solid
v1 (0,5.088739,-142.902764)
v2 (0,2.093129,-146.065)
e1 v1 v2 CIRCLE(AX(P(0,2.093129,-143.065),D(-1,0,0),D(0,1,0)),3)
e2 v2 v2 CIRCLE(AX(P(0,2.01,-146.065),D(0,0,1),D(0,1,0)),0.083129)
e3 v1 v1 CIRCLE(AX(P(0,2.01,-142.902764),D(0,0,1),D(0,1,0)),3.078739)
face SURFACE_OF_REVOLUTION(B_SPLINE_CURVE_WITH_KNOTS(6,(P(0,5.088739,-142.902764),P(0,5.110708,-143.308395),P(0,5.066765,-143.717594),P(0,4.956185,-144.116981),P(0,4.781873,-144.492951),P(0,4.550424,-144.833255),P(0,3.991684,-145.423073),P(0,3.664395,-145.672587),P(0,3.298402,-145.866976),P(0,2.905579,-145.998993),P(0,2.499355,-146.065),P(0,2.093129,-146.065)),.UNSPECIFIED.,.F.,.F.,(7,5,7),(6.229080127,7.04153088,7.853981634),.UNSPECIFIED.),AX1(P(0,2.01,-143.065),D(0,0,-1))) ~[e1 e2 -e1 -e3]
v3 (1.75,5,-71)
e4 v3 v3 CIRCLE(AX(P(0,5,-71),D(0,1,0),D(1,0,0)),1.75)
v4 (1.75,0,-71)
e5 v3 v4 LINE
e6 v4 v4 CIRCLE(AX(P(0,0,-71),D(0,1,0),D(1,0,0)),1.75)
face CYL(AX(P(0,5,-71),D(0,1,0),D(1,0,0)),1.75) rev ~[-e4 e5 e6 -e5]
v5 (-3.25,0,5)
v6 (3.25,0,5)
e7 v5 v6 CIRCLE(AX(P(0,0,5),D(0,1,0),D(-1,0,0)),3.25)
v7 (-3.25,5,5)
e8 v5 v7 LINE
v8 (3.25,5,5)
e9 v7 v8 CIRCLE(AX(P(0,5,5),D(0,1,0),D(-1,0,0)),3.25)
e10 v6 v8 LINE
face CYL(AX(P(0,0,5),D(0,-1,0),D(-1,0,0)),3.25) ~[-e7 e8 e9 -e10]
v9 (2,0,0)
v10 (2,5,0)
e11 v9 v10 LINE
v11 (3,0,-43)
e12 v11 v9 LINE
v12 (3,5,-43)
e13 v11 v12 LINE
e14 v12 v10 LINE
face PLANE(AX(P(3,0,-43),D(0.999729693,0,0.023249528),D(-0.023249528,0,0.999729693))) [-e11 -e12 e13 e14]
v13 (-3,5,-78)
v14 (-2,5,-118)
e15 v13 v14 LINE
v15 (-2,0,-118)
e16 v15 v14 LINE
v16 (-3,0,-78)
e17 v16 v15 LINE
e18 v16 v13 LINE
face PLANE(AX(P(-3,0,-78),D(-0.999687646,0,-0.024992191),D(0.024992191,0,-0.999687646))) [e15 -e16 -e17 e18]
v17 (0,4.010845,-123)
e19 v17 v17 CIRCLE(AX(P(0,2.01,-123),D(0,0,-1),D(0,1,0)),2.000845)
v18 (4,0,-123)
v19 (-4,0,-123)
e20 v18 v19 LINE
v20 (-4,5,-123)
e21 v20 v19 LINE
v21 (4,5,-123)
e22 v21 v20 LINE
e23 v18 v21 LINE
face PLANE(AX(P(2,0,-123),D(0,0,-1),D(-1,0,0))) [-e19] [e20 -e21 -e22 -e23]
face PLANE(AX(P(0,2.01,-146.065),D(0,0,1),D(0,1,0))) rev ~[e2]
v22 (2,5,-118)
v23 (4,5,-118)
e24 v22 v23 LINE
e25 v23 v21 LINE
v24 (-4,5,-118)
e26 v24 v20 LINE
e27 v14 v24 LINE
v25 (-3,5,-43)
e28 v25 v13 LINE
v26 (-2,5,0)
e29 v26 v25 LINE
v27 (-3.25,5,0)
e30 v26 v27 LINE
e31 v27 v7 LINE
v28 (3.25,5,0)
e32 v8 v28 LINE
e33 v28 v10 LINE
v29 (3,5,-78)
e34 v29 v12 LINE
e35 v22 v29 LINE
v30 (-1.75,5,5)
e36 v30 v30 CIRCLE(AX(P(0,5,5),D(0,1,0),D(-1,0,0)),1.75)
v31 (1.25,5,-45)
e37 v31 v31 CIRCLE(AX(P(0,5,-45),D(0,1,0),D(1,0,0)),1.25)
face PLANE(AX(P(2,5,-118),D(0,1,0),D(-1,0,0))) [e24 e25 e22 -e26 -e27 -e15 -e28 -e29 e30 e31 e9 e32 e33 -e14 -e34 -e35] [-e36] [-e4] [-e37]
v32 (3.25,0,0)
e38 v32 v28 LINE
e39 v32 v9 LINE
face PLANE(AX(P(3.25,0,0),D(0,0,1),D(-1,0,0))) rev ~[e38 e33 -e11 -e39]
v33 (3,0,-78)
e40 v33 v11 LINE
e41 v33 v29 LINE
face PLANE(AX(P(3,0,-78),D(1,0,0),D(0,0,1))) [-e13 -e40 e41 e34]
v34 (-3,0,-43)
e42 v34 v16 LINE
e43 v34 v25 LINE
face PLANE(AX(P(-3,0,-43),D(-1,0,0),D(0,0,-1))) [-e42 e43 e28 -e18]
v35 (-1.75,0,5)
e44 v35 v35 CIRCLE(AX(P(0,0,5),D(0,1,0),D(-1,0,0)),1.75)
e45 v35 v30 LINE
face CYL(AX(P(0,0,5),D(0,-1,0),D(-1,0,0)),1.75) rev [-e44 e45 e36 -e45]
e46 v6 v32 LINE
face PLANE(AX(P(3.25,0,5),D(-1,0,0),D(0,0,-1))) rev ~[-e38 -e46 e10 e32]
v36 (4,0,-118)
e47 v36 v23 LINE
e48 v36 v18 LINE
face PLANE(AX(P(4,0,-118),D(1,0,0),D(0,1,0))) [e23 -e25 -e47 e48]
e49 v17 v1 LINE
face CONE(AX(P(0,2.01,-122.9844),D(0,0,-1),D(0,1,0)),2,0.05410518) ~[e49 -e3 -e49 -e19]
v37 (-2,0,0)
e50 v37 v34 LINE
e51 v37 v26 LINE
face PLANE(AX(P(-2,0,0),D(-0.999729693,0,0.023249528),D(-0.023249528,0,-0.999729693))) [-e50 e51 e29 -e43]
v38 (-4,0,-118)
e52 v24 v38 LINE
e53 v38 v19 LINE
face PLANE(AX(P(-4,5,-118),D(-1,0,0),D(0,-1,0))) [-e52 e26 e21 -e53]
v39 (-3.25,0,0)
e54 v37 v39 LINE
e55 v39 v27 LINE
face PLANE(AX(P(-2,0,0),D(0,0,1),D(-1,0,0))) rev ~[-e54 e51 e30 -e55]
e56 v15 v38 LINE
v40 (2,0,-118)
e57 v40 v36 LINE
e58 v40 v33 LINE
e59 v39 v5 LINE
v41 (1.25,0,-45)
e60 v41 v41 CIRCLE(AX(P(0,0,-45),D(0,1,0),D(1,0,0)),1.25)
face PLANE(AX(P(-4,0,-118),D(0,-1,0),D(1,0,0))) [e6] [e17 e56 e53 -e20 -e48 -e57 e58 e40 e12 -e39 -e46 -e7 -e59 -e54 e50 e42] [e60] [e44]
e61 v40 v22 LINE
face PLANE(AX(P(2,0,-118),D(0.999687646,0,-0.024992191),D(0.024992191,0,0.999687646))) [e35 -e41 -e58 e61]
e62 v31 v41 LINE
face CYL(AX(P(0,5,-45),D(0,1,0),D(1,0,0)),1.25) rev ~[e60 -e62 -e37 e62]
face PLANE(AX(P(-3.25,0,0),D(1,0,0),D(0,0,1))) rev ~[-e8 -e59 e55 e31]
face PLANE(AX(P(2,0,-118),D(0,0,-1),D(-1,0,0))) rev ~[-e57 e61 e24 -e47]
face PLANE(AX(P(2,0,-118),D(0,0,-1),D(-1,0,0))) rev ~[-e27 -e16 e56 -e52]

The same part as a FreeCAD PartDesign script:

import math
import FreeCAD as App
import Part
import Sketcher
Q = App.Units.Quantity


def edges_at(feature, points):
    """Names of the edges that pass closest to the given points."""
    edges = feature.Shape.Edges
    near = lambda p: min(range(len(edges)), key=lambda i: edges[i].distToShape(Part.Vertex(*p))[0])
    return sorted({f"Edge{near(p) + 1}" for p in points})


def add_polygon(sketch, points):
    """Adds a closed chain of lines whose ends are joined by coincident constraints."""
    first, n = sketch.GeometryCount, len(points)
    for a, b in zip(points, points[1:] + points[:1]):
        sketch.addGeometry(Part.LineSegment(App.Vector(*a, 0), App.Vector(*b, 0)), False)
    for i in range(n):
        sketch.addConstraint(Sketcher.Constraint("Coincident", first + i, 2, first + (i + 1) % n, 1))

doc = App.newDocument("Part")
params = doc.addObject("Spreadsheet::Sheet", "Params")
for row, (alias, value) in enumerate([
    ("sketch1_diameter", "3.5 mm"),
    ("sketch1_width", "4 mm"),
    ("sketch1_height", "5 mm"),
    ("sketch1_radius", "3.25 mm"),
    ("pad1_length", "5 mm"),
    ("sketch2_diameter", "2.5 mm"),
    ("sketch2_diameter2", "3.5 mm"),
    ("sketch3_width", "8 mm"),
    ("sketch3_height", "5 mm"),
    ("pad2_length", "5 mm"),
    ("sketch4_width", "2 mm"),
    ("sketch4_width2", "3.25 mm"),
    ("revolution_angle", "360 deg"),
    ("fillet_radius", "3 mm"),
], start=1):
    params.set(f"A{row}", alias)
    params.set(f"B{row}", "=" + value)
    params.setAlias(f"B{row}", alias)

body = doc.addObject("PartDesign::Body", "Body")

# Sketch on XZ plane
sketch1 = doc.addObject("Sketcher::SketchObject", "Sketch")
body.addObject(sketch1)
sketch1.AttachmentSupport = (doc.XZ_Plane, [""])
sketch1.MapMode = "FlatFace"
sketch1.addGeometry([
    Part.ArcOfCircle(Part.Circle(App.Vector(0, 5, 0), App.Vector(0, 0, 1), 3.2), math.radians(0), math.radians(180)),  # 0
    Part.LineSegment(App.Vector(3.2, 5, 0), App.Vector(3.2, 0, 0)),  # 1
    Part.LineSegment(App.Vector(3.2, 0, 0), App.Vector(2, 0, 0)),  # 2
    Part.LineSegment(App.Vector(2, 0, 0), App.Vector(3, -43, 0)),  # 3
    Part.LineSegment(App.Vector(3, -43, 0), App.Vector(3, -78, 0)),  # 4
    Part.LineSegment(App.Vector(3, -78, 0), App.Vector(2, -118, 0)),  # 5
    Part.LineSegment(App.Vector(2, -118, 0), App.Vector(-2, -118, 0)),  # 6
    Part.LineSegment(App.Vector(-2, -118, 0), App.Vector(-3, -78, 0)),  # 7
    Part.LineSegment(App.Vector(-3, -78, 0), App.Vector(-3, -43, 0)),  # 8
    Part.LineSegment(App.Vector(-3, -43, 0), App.Vector(-2, 0, 0)),  # 9
    Part.LineSegment(App.Vector(-2, 0, 0), App.Vector(-3.2, 0, 0)),  # 10
    Part.LineSegment(App.Vector(-3.2, 0, 0), App.Vector(-3.2, 5, 0)),  # 11
    Part.Circle(App.Vector(0, 5, 0), App.Vector(0, 0, 1), 1.8),  # 12
], False)
sketch1.addConstraint([
    Sketcher.Constraint("Tangent", 0, 1, 1, 1),
    Sketcher.Constraint("Coincident", 1, 2, 2, 1),
    Sketcher.Constraint("Coincident", 2, 2, 3, 1),
    Sketcher.Constraint("Coincident", 3, 2, 4, 1),
    Sketcher.Constraint("Coincident", 4, 2, 5, 1),
    Sketcher.Constraint("Coincident", 5, 2, 6, 1),
    Sketcher.Constraint("Coincident", 6, 2, 7, 1),
    Sketcher.Constraint("Coincident", 7, 2, 8, 1),
    Sketcher.Constraint("Coincident", 8, 2, 9, 1),
    Sketcher.Constraint("Coincident", 9, 2, 10, 1),
    Sketcher.Constraint("Coincident", 10, 2, 11, 1),
    Sketcher.Constraint("Tangent", 11, 2, 0, 2),
    Sketcher.Constraint("Vertical", 1),
    Sketcher.Constraint("Horizontal", 2),
    Sketcher.Constraint("Vertical", 4),
    Sketcher.Constraint("Horizontal", 6),
    Sketcher.Constraint("Vertical", 8),
    Sketcher.Constraint("Horizontal", 10),
    Sketcher.Constraint("Vertical", 11),
    Sketcher.Constraint("Coincident", 12, 3, 0, 3),
    Sketcher.Constraint("Symmetric", 2, 2, 9, 2, -1, 1),
    Sketcher.Constraint("Symmetric", 4, 2, 7, 2, -2),
    Sketcher.Constraint("Symmetric", 1, 2, 10, 2, -2),
    Sketcher.Constraint("Horizontal", 3, 2, 8, 2),
    Sketcher.Constraint("Vertical", 2, 2, 5, 2),
    Sketcher.Constraint("Vertical", 6, 2, 9, 2),
    Sketcher.Constraint("Diameter", 12, Q("3.5 mm")),
    Sketcher.Constraint("DistanceX", 6, 2, 6, 1, Q("4 mm")),
    Sketcher.Constraint("DistanceY", 1, 2, 1, 1, Q("5 mm")),
    Sketcher.Constraint("Radius", 0, Q("3.25 mm")),
    Sketcher.Constraint("DistanceY", 3, 2, -1, 1, Q("43 mm")),
    Sketcher.Constraint("DistanceY", 4, 2, -1, 1, Q("78 mm")),
    Sketcher.Constraint("DistanceY", 5, 2, -1, 1, Q("118 mm")),
    Sketcher.Constraint("DistanceX", 6, 2, 4, 2, Q("5 mm")),
])
sketch1.setExpression("Constraints[26]", "Params.sketch1_diameter")
sketch1.setExpression("Constraints[27]", "Params.sketch1_width")
sketch1.setExpression("Constraints[28]", "Params.sketch1_height")
sketch1.setExpression("Constraints[29]", "Params.sketch1_radius")
pad1 = doc.addObject("PartDesign::Pad", "Pad")
body.addObject(pad1)
pad1.Profile = sketch1
pad1.setExpression("Length", "Params.pad1_length")
pad1.Reversed = True

# Sketch on XZ plane
sketch2 = doc.addObject("Sketcher::SketchObject", "Sketch001")
body.addObject(sketch2)
sketch2.AttachmentSupport = (doc.XZ_Plane, [""])
sketch2.MapMode = "FlatFace"
sketch2.AttachmentOffset = App.Placement(App.Vector(0, 0, -5), App.Rotation())
sketch2.addGeometry([
    Part.Circle(App.Vector(0, -45, 0), App.Vector(0, 0, 1), 1.2),
    Part.Circle(App.Vector(0, -71, 0), App.Vector(0, 0, 1), 1.8),
], False)
sketch2.addConstraint([
    Sketcher.Constraint("PointOnObject", 0, 3, -2),
    Sketcher.Constraint("PointOnObject", 1, 3, -2),
    Sketcher.Constraint("Diameter", 0, Q("2.5 mm")),
    Sketcher.Constraint("Diameter", 1, Q("3.5 mm")),
    Sketcher.Constraint("DistanceY", 0, 3, -1, 1, Q("45 mm")),
    Sketcher.Constraint("DistanceY", 1, 3, -1, 1, Q("71 mm")),
])
sketch2.setExpression("Constraints[2]", "Params.sketch2_diameter")
sketch2.setExpression("Constraints[3]", "Params.sketch2_diameter2")
pocket1 = doc.addObject("PartDesign::Pocket", "Pocket")
body.addObject(pocket1)
pocket1.Profile = sketch2
pocket1.Type = "ThroughAll"
pocket1.Reversed = True

# Sketch on XY plane
sketch3 = doc.addObject("Sketcher::SketchObject", "Sketch002")
body.addObject(sketch3)
sketch3.AttachmentSupport = (doc.XY_Plane, [""])
sketch3.MapMode = "FlatFace"
sketch3.AttachmentOffset = App.Placement(App.Vector(0, 0, -118), App.Rotation())
add_polygon(sketch3, [(-4, 5), (4, 5), (4, 0), (-4, 0)])  # lines 0-3
sketch3.addConstraint([
    Sketcher.Constraint("Horizontal", 0),
    Sketcher.Constraint("Vertical", 1),
    Sketcher.Constraint("Horizontal", 2),
    Sketcher.Constraint("Vertical", 3),
    Sketcher.Constraint("Symmetric", 1, 2, 2, 2, -1, 1),
    Sketcher.Constraint("DistanceX", 0, 1, 0, 2, Q("8 mm")),
    Sketcher.Constraint("DistanceY", 1, 2, 1, 1, Q("5 mm")),
])
sketch3.setExpression("Constraints[9]", "Params.sketch3_width")
sketch3.setExpression("Constraints[10]", "Params.sketch3_height")
pad2 = doc.addObject("PartDesign::Pad", "Pad001")
body.addObject(pad2)
pad2.Profile = sketch3
pad2.setExpression("Length", "Params.pad2_length")
pad2.Reversed = True

# Sketch on YZ plane
sketch4 = doc.addObject("Sketcher::SketchObject", "Sketch003")
body.addObject(sketch4)
sketch4.AttachmentSupport = (doc.YZ_Plane, [""])
sketch4.MapMode = "FlatFace"
add_polygon(sketch4, [(4, -123), (2, -123), (2, -146.1), (5.3, -146.1)])  # lines 0-3
sketch4.addGeometry(Part.LineSegment(App.Vector(2, -146.1, 0), App.Vector(2, -123, 0)), True)  # axis
sketch4.addConstraint([
    Sketcher.Constraint("Horizontal", 0),
    Sketcher.Constraint("Vertical", 1),
    Sketcher.Constraint("Horizontal", 2),
    Sketcher.Constraint("Vertical", 4),
    Sketcher.Constraint("Coincident", 4, 1, 1, 2),
    Sketcher.Constraint("Horizontal", 3, 2, 4, 2),
    Sketcher.Constraint("DistanceX", 0, 2, 0, 1, Q("2 mm")),
    Sketcher.Constraint("DistanceX", 2, 1, 2, 2, Q("3.25 mm")),
    Sketcher.Constraint("Angle", 3, Q("93.1 deg")),
    Sketcher.Constraint("DistanceX", -1, 1, 0, 2, Q("2.01 mm")),
    Sketcher.Constraint("DistanceY", 1, 2, -1, 1, Q("146.065 mm")),
])
sketch4.setExpression("Constraints[10]", "Params.sketch4_width")
sketch4.setExpression("Constraints[11]", "Params.sketch4_width2")
revolution = doc.addObject("PartDesign::Revolution", "Revolution")
body.addObject(revolution)
revolution.Profile = sketch4
revolution.ReferenceAxis = (sketch4, ["Axis0"])
revolution.setExpression("Angle", "Params.revolution_angle")
doc.recompute()

fillet = doc.addObject("PartDesign::Fillet", "Fillet")
body.addObject(fillet)
fillet.Base = (revolution, edges_at(revolution, [(0, -1.24, -146.065)]))
fillet.setExpression("Radius", "Params.fillet_radius")

doc.recompute()
